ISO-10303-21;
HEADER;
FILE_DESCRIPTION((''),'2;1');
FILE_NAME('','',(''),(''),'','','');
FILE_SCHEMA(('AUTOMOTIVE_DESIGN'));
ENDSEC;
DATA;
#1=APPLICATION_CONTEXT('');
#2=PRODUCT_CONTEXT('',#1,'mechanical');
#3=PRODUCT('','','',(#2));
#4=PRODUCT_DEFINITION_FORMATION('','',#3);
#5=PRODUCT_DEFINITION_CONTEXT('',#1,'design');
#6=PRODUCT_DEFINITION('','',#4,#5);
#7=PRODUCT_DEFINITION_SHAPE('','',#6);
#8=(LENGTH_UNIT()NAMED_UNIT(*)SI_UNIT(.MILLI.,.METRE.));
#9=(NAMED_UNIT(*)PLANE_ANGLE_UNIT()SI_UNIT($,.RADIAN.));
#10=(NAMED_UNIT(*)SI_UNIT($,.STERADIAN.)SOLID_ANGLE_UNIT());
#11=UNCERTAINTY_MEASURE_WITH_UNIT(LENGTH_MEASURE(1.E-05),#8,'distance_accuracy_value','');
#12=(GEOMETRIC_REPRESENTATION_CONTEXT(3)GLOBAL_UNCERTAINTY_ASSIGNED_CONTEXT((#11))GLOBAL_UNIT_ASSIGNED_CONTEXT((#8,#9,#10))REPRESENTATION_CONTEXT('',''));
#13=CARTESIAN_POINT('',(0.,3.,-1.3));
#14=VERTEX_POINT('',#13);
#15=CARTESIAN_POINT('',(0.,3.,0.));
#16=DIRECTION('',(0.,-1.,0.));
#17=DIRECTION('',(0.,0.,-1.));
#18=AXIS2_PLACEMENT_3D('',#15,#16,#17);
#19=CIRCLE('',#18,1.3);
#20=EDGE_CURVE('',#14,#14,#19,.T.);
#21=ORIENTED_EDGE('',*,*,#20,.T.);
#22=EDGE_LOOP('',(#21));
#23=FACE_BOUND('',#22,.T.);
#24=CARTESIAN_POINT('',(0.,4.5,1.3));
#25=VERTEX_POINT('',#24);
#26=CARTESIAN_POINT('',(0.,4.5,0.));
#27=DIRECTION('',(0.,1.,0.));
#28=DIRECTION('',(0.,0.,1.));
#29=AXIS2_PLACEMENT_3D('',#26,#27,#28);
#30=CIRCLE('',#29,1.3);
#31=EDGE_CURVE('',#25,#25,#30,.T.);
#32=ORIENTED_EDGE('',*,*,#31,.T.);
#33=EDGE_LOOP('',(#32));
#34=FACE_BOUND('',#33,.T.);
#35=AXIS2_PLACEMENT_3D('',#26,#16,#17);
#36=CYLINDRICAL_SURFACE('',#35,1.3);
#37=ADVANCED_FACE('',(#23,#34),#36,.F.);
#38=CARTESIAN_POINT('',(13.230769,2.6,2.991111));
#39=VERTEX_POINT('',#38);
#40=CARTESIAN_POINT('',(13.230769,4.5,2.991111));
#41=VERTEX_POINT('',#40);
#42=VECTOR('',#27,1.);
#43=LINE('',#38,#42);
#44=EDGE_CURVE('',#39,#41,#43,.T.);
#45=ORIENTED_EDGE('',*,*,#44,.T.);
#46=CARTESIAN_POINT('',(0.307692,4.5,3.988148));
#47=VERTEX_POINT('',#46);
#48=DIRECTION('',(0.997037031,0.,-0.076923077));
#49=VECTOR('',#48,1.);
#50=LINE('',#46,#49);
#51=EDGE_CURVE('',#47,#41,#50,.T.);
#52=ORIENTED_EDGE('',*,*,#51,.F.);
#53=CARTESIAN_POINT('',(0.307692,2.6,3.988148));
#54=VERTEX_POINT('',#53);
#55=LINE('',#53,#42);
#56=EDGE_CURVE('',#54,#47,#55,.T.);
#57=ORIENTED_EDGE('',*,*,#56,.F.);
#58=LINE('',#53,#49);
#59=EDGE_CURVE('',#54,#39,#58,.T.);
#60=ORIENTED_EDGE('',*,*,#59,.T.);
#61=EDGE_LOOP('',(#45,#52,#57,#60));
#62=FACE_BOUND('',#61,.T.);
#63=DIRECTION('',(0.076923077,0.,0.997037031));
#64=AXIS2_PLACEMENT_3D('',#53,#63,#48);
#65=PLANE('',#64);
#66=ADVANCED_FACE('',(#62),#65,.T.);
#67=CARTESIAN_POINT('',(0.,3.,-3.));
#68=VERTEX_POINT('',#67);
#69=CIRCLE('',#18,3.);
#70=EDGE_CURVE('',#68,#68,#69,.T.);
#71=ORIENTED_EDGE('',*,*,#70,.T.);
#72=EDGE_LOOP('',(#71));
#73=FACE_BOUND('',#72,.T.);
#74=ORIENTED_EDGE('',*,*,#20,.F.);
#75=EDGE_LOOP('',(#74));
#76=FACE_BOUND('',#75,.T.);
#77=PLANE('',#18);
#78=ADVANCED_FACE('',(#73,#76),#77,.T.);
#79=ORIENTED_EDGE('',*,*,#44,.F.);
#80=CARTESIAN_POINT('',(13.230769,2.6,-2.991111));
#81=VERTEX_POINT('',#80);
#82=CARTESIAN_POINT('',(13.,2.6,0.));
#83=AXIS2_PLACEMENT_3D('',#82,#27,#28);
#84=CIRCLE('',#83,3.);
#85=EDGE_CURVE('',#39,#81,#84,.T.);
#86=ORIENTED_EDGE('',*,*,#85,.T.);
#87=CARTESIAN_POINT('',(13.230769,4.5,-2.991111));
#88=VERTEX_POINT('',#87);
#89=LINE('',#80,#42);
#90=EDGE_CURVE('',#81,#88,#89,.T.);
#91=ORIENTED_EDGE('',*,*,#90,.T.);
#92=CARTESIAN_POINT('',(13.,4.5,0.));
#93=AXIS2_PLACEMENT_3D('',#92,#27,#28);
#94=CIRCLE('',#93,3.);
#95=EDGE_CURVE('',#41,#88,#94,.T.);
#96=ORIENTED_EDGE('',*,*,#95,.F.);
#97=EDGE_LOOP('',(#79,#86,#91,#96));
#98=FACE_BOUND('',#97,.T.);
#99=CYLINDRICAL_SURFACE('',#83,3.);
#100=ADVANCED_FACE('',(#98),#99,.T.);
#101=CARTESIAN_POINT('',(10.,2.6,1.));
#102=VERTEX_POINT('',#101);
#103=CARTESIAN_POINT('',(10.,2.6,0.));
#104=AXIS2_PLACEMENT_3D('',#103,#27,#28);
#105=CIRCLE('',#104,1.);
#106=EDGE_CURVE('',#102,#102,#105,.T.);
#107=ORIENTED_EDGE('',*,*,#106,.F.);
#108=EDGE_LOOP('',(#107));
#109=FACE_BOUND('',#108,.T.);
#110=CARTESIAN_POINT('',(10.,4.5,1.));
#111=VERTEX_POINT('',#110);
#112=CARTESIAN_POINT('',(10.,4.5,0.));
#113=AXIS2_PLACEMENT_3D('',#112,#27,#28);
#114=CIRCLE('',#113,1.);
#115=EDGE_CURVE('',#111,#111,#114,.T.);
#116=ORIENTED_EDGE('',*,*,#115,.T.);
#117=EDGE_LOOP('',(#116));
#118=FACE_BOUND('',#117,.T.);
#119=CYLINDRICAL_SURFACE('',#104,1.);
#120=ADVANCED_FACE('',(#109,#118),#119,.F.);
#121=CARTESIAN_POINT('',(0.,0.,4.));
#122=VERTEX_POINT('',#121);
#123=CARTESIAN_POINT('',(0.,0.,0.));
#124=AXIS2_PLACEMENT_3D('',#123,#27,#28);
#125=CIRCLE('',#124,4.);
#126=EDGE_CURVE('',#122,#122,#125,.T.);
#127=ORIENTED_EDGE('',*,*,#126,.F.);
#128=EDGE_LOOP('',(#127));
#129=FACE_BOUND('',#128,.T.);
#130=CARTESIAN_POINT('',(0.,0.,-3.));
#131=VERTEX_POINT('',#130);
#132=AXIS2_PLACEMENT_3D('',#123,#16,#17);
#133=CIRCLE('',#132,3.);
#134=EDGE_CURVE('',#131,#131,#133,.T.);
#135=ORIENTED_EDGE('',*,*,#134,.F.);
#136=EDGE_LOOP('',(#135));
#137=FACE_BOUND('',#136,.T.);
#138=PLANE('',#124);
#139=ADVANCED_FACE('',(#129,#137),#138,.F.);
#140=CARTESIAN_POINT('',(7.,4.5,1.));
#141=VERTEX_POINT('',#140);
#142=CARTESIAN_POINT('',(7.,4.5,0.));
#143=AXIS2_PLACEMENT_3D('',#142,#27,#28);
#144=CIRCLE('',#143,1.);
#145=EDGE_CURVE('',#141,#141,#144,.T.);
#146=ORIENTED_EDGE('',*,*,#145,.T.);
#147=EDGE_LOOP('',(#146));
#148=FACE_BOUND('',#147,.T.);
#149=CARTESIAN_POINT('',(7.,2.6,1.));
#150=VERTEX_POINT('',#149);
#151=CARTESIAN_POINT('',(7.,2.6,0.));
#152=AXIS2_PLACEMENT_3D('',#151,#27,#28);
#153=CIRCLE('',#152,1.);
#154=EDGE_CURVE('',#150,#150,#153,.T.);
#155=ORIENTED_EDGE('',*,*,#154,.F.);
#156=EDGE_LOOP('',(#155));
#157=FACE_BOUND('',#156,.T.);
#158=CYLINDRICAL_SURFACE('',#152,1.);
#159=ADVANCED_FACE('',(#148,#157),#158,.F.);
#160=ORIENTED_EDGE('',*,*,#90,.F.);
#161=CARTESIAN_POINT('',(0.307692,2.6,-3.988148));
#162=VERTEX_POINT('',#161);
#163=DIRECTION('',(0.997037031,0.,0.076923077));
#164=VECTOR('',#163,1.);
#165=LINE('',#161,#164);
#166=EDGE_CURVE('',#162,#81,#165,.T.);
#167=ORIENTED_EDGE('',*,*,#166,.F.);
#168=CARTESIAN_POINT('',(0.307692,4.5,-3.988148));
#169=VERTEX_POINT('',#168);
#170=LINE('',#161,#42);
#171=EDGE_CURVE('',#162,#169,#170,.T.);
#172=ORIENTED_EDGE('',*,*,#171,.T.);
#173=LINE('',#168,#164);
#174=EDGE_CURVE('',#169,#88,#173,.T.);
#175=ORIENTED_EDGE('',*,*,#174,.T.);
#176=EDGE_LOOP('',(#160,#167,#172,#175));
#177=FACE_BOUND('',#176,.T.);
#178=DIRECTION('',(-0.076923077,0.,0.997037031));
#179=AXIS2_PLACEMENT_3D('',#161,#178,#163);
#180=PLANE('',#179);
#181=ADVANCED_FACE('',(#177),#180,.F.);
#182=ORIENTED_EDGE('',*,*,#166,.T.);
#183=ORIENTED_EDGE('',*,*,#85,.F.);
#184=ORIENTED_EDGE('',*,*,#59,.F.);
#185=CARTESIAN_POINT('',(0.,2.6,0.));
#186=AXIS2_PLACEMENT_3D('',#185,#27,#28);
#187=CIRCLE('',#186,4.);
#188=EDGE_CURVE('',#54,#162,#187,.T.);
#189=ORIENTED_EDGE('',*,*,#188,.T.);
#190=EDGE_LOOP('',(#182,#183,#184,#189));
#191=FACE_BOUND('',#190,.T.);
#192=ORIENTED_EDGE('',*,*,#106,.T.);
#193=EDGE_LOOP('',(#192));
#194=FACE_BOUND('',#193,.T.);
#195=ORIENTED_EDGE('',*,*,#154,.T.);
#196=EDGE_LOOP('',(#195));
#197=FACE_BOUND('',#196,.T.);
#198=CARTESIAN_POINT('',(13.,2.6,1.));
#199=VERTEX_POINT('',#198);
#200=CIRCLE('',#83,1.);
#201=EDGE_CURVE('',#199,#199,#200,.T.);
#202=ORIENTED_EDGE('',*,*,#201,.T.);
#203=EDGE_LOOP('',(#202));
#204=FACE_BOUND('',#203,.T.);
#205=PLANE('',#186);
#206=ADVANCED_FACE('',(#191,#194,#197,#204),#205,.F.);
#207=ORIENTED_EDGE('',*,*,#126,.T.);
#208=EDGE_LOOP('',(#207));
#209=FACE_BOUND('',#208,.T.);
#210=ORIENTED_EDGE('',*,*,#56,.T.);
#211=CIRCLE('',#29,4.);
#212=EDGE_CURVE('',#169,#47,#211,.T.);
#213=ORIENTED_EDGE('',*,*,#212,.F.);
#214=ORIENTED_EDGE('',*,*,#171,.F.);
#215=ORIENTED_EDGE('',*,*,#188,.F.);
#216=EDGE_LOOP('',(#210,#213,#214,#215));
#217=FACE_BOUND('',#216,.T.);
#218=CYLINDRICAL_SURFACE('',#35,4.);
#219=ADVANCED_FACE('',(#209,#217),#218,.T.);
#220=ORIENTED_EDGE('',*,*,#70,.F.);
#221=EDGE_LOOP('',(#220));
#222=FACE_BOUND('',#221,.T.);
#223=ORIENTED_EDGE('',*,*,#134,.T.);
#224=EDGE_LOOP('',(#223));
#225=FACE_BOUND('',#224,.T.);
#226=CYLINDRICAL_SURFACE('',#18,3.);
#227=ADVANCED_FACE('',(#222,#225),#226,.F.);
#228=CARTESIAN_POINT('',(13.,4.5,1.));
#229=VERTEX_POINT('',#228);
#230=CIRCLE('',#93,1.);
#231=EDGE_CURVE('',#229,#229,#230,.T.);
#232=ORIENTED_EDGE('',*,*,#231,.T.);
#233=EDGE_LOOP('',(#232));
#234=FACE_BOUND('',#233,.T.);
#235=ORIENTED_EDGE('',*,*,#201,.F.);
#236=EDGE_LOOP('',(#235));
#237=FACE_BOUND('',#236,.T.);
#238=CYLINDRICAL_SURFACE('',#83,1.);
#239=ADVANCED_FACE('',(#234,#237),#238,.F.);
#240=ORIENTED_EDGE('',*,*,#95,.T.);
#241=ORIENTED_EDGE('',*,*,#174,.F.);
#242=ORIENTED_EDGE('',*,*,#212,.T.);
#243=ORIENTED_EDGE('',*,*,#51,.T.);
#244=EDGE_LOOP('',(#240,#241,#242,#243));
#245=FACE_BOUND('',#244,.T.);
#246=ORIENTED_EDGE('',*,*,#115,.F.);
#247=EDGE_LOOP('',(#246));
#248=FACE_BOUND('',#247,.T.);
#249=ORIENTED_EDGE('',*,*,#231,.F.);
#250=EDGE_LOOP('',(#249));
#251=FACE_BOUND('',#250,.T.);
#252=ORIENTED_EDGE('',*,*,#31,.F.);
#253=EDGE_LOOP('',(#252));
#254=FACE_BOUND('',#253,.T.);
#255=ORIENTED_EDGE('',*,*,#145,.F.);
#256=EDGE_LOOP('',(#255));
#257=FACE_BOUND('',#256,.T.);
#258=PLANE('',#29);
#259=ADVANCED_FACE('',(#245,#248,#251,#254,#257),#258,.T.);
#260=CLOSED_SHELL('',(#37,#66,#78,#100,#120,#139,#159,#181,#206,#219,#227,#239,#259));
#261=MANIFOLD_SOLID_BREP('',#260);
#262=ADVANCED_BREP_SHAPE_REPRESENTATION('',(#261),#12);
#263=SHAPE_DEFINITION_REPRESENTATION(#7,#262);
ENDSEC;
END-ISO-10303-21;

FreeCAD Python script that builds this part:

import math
import FreeCAD as App
import Part
import Sketcher
from FreeCAD import Vector
Q = App.Units.Quantity

doc = App.newDocument("Part")
body = doc.addObject("PartDesign::Body", "Body")

# Sketch on XZ plane
sketch1 = doc.addObject("Sketcher::SketchObject", "Sketch")
body.addObject(sketch1)
sketch1.AttachmentSupport = (doc.XZ_Plane, [""])
sketch1.MapMode = "FlatFace"
sketch1.addGeometry([
    Part.Circle(Vector(0, 0, 0), Vector(0, 0, 1), 4),
    Part.Circle(Vector(0, 0, 0), Vector(0, 0, 1), 1.3),
], False)
sketch1.addConstraint([
    Sketcher.Constraint("Coincident", 0, 3, -1, 1),
    Sketcher.Constraint("Coincident", 1, 3, -1, 1),
    Sketcher.Constraint("Diameter", 0, Q("8 mm")),
    Sketcher.Constraint("Diameter", 1, Q("2.6 mm")),
])
pad1 = doc.addObject("PartDesign::Pad", "Pad")
body.addObject(pad1)
pad1.Profile = sketch1
pad1.Length = 4.5
pad1.Reversed = True

# Sketch on XZ plane
sketch2 = doc.addObject("Sketcher::SketchObject", "Sketch001")
body.addObject(sketch2)
sketch2.AttachmentSupport = (doc.XZ_Plane, [""])
sketch2.MapMode = "FlatFace"
sketch2.AttachmentOffset = App.Placement(Vector(0, 0, -4.5), App.Rotation())
sketch2.addGeometry([
    Part.LineSegment(Vector(13.230769, -2.991111, 0), Vector(0.307692, -3.988148, 0)),  # 0
    Part.ArcOfCircle(Part.Circle(Vector(0, 0, 0), Vector(0, 0, 1), 4), math.radians(-85.588274), math.radians(85.588274)),  # 1
    Part.LineSegment(Vector(0.307692, 3.988148, 0), Vector(13.230769, 2.991111, 0)),  # 2
    Part.ArcOfCircle(Part.Circle(Vector(13, 0, 0), Vector(0, 0, 1), 3), math.radians(-85.588274), math.radians(85.588274)),  # 3
    Part.Circle(Vector(7, 0, 0), Vector(0, 0, 1), 1),  # 4
    Part.Circle(Vector(10, 0, 0), Vector(0, 0, 1), 1),  # 5
    Part.Circle(Vector(13, 0, 0), Vector(0, 0, 1), 1),  # 6
], False)
sketch2.addConstraint([
    Sketcher.Constraint("Tangent", 0, 2, 1, 1),
    Sketcher.Constraint("Tangent", 1, 2, 2, 1),
    Sketcher.Constraint("Tangent", 2, 2, 3, 2),
    Sketcher.Constraint("Tangent", 3, 1, 0, 1),
    Sketcher.Constraint("Coincident", 1, 3, -1, 1),
    Sketcher.Constraint("Coincident", 6, 3, 3, 3),
    Sketcher.Constraint("Equal", 4, 5),
    Sketcher.Constraint("Equal", 5, 6),
    Sketcher.Constraint("PointOnObject", 3, 3, -1),
    Sketcher.Constraint("PointOnObject", 4, 3, -1),
    Sketcher.Constraint("PointOnObject", 5, 3, -1),
    Sketcher.Constraint("Diameter", 4, Q("2 mm")),
    Sketcher.Constraint("Radius", 1, Q("4 mm")),
    Sketcher.Constraint("Radius", 3, Q("3 mm")),
    Sketcher.Constraint("DistanceX", -1, 1, 3, 3, Q("13 mm")),
    Sketcher.Constraint("DistanceX", -1, 1, 4, 3, Q("7 mm")),
    Sketcher.Constraint("DistanceX", -1, 1, 5, 3, Q("10 mm")),
])
pad2 = doc.addObject("PartDesign::Pad", "Pad001")
body.addObject(pad2)
pad2.Profile = sketch2
pad2.Length = 1.9

# Sketch on XZ plane
sketch3 = doc.addObject("Sketcher::SketchObject", "Sketch002")
body.addObject(sketch3)
sketch3.AttachmentSupport = (doc.XZ_Plane, [""])
sketch3.MapMode = "FlatFace"
sketch3.addGeometry(Part.Circle(Vector(0, 0, 0), Vector(0, 0, 1), 3), False)
sketch3.addConstraint([
    Sketcher.Constraint("Coincident", 0, 3, -1, 1),
    Sketcher.Constraint("Diameter", 0, Q("6 mm")),
])
pocket1 = doc.addObject("PartDesign::Pocket", "Pocket")
body.addObject(pocket1)
pocket1.Profile = sketch3
pocket1.Length = 3

doc.recompute()
